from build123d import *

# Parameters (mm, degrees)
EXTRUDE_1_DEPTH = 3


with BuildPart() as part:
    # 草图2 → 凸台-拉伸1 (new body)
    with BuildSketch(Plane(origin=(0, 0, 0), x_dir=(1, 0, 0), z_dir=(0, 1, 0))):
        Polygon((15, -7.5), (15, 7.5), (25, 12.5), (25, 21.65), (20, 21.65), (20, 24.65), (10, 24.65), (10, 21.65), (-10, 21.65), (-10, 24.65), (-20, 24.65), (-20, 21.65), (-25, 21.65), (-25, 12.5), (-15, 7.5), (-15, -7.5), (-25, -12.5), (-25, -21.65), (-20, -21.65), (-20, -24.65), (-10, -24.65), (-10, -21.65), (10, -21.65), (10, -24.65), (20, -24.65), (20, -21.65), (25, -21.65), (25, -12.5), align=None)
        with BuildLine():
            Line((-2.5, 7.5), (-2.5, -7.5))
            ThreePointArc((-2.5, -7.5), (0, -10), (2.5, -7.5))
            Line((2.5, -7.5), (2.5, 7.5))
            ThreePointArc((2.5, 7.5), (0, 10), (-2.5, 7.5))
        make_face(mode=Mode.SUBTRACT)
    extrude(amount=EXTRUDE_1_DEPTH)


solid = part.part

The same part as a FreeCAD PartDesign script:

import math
import FreeCAD as App
import Part
import Sketcher
from FreeCAD import Vector
Q = App.Units.Quantity


def add_polygon(sketch, points):
    """Adds a closed chain of lines whose ends are joined by coincident constraints."""
    first, n = sketch.GeometryCount, len(points)
    for a, b in zip(points, points[1:] + points[:1]):
        sketch.addGeometry(Part.LineSegment(App.Vector(*a, 0), App.Vector(*b, 0)), False)
    for i in range(n):
        sketch.addConstraint(Sketcher.Constraint("Coincident", first + i, 2, first + (i + 1) % n, 1))

doc = App.newDocument("Part")
body = doc.addObject("PartDesign::Body", "Body")

# Sketch on XZ plane
sketch1 = body.newObject("Sketcher::SketchObject", "Sketch")
sketch1.AttachmentSupport = (doc.getObject("XZ_Plane"), [""])
sketch1.MapMode = "FlatFace"
add_polygon(sketch1, [(15, 7.5), (15, -7.5), (25, -12.5), (25, -21.6), (20, -21.6), (20, -24.6), (10, -24.6), (10, -21.6), (-10, -21.6), (-10, -24.6), (-20, -24.6), (-20, -21.6), (-25, -21.6), (-25, -12.5), (-15, -7.5), (-15, 7.5), (-25, 12.5), (-25, 21.6), (-20, 21.6), (-20, 24.6), (-10, 24.6), (-10, 21.6), (10, 21.6), (10, 24.6), (20, 24.6), (20, 21.6), (25, 21.6), (25, 12.5)])  # lines 0-27
sketch1.addGeometry(Part.LineSegment(Vector(-2.5, 7.5, 0), Vector(-2.5, -7.5, 0)), False)  # 28
sketch1.addGeometry(Part.ArcOfCircle(Part.Circle(Vector(0, -7.5, 0), Vector(0, 0, 1), 2.5), math.radians(180), math.radians(360)), False)  # 29
sketch1.addGeometry(Part.LineSegment(Vector(2.5, -7.5, 0), Vector(2.5, 7.5, 0)), False)  # 30
sketch1.addGeometry(Part.ArcOfCircle(Part.Circle(Vector(0, 7.5, 0), Vector(0, 0, 1), 2.5), math.radians(0), math.radians(180)), False)  # 31
sketch1.addConstraint(Sketcher.Constraint("Tangent", 28, 2, 29, 1))
sketch1.addConstraint(Sketcher.Constraint("Tangent", 29, 2, 30, 1))
sketch1.addConstraint(Sketcher.Constraint("Tangent", 30, 2, 31, 1))
sketch1.addConstraint(Sketcher.Constraint("Tangent", 31, 2, 28, 1))
sketch1.addConstraint(Sketcher.Constraint("Vertical", 0))
sketch1.addConstraint(Sketcher.Constraint("Vertical", 2))
sketch1.addConstraint(Sketcher.Constraint("Horizontal", 3))
sketch1.addConstraint(Sketcher.Constraint("Vertical", 4))
sketch1.addConstraint(Sketcher.Constraint("Horizontal", 5))
sketch1.addConstraint(Sketcher.Constraint("Vertical", 6))
sketch1.addConstraint(Sketcher.Constraint("Horizontal", 7))
sketch1.addConstraint(Sketcher.Constraint("Vertical", 8))
sketch1.addConstraint(Sketcher.Constraint("Horizontal", 9))
sketch1.addConstraint(Sketcher.Constraint("Vertical", 10))
sketch1.addConstraint(Sketcher.Constraint("Horizontal", 11))
sketch1.addConstraint(Sketcher.Constraint("Vertical", 12))
sketch1.addConstraint(Sketcher.Constraint("Vertical", 14))
sketch1.addConstraint(Sketcher.Constraint("Vertical", 16))
sketch1.addConstraint(Sketcher.Constraint("Horizontal", 17))
sketch1.addConstraint(Sketcher.Constraint("Vertical", 18))
sketch1.addConstraint(Sketcher.Constraint("Horizontal", 19))
sketch1.addConstraint(Sketcher.Constraint("Vertical", 20))
sketch1.addConstraint(Sketcher.Constraint("Horizontal", 21))
sketch1.addConstraint(Sketcher.Constraint("Vertical", 22))
sketch1.addConstraint(Sketcher.Constraint("Horizontal", 23))
sketch1.addConstraint(Sketcher.Constraint("Vertical", 24))
sketch1.addConstraint(Sketcher.Constraint("Horizontal", 25))
sketch1.addConstraint(Sketcher.Constraint("Vertical", 26))
sketch1.addConstraint(Sketcher.Constraint("Vertical", 28))
sketch1.addConstraint(Sketcher.Constraint("Vertical", 30))
sketch1.addConstraint(Sketcher.Constraint("Symmetric", 29, 3, 31, 3, -1, 1))
sketch1.addConstraint(Sketcher.Constraint("Symmetric", 0, 2, 14, 2, -1, 1))
sketch1.addConstraint(Sketcher.Constraint("Symmetric", 1, 2, 15, 2, -1, 1))
sketch1.addConstraint(Sketcher.Constraint("Symmetric", 3, 2, 17, 2, -1, 1))
sketch1.addConstraint(Sketcher.Constraint("Symmetric", 5, 2, 19, 2, -1, 1))
sketch1.addConstraint(Sketcher.Constraint("Symmetric", 7, 2, 21, 2, -1, 1))
sketch1.addConstraint(Sketcher.Constraint("Symmetric", 9, 2, 23, 2, -1, 1))
sketch1.addConstraint(Sketcher.Constraint("Symmetric", 11, 2, 25, 2, -1, 1))
sketch1.addConstraint(Sketcher.Constraint("Symmetric", 5, 2, 8, 2, -2))
sketch1.addConstraint(Sketcher.Constraint("Symmetric", 3, 2, 10, 2, -2))
sketch1.addConstraint(Sketcher.Constraint("Symmetric", 1, 2, 12, 2, -2))
sketch1.addConstraint(Sketcher.Constraint("Parallel", 13, 27))
sketch1.addConstraint(Sketcher.Constraint("Horizontal", 29, 3, 0, 2))
sketch1.addConstraint(Sketcher.Constraint("Horizontal", 3, 2, 6, 2))
sketch1.addConstraint(Sketcher.Constraint("Horizontal", 0, 2, 13, 2))
sketch1.addConstraint(Sketcher.Constraint("Horizontal", 15, 2, 26, 2))
sketch1.addConstraint(Sketcher.Constraint("Radius", 29, Q("2.5 mm")))
sketch1.addConstraint(Sketcher.Constraint("DistanceX", 3, 2, 3, 1, Q("5 mm")))
sketch1.addConstraint(Sketcher.Constraint("DistanceX", 5, 2, 5, 1, Q("10 mm")))
sketch1.addConstraint(Sketcher.Constraint("DistanceX", 7, 2, 7, 1, Q("20 mm")))
sketch1.addConstraint(Sketcher.Constraint("DistanceY", 0, 2, 0, 1, Q("15 mm")))
sketch1.addConstraint(Sketcher.Constraint("DistanceY", 4, 2, 4, 1, Q("3 mm")))
sketch1.addConstraint(Sketcher.Constraint("DistanceX", -1, 1, 0, 2, Q("15 mm")))
sketch1.addConstraint(Sketcher.Constraint("DistanceY", 1, 2, 0, 2, Q("5 mm")))
sketch1.addConstraint(Sketcher.Constraint("DistanceY", 2, 2, 2, 1, Q("9.15 mm")))
pad1 = body.newObject("PartDesign::Pad", "Pad")
pad1.Profile = sketch1
pad1.Length = 3
pad1.Reversed = True

doc.recompute()
